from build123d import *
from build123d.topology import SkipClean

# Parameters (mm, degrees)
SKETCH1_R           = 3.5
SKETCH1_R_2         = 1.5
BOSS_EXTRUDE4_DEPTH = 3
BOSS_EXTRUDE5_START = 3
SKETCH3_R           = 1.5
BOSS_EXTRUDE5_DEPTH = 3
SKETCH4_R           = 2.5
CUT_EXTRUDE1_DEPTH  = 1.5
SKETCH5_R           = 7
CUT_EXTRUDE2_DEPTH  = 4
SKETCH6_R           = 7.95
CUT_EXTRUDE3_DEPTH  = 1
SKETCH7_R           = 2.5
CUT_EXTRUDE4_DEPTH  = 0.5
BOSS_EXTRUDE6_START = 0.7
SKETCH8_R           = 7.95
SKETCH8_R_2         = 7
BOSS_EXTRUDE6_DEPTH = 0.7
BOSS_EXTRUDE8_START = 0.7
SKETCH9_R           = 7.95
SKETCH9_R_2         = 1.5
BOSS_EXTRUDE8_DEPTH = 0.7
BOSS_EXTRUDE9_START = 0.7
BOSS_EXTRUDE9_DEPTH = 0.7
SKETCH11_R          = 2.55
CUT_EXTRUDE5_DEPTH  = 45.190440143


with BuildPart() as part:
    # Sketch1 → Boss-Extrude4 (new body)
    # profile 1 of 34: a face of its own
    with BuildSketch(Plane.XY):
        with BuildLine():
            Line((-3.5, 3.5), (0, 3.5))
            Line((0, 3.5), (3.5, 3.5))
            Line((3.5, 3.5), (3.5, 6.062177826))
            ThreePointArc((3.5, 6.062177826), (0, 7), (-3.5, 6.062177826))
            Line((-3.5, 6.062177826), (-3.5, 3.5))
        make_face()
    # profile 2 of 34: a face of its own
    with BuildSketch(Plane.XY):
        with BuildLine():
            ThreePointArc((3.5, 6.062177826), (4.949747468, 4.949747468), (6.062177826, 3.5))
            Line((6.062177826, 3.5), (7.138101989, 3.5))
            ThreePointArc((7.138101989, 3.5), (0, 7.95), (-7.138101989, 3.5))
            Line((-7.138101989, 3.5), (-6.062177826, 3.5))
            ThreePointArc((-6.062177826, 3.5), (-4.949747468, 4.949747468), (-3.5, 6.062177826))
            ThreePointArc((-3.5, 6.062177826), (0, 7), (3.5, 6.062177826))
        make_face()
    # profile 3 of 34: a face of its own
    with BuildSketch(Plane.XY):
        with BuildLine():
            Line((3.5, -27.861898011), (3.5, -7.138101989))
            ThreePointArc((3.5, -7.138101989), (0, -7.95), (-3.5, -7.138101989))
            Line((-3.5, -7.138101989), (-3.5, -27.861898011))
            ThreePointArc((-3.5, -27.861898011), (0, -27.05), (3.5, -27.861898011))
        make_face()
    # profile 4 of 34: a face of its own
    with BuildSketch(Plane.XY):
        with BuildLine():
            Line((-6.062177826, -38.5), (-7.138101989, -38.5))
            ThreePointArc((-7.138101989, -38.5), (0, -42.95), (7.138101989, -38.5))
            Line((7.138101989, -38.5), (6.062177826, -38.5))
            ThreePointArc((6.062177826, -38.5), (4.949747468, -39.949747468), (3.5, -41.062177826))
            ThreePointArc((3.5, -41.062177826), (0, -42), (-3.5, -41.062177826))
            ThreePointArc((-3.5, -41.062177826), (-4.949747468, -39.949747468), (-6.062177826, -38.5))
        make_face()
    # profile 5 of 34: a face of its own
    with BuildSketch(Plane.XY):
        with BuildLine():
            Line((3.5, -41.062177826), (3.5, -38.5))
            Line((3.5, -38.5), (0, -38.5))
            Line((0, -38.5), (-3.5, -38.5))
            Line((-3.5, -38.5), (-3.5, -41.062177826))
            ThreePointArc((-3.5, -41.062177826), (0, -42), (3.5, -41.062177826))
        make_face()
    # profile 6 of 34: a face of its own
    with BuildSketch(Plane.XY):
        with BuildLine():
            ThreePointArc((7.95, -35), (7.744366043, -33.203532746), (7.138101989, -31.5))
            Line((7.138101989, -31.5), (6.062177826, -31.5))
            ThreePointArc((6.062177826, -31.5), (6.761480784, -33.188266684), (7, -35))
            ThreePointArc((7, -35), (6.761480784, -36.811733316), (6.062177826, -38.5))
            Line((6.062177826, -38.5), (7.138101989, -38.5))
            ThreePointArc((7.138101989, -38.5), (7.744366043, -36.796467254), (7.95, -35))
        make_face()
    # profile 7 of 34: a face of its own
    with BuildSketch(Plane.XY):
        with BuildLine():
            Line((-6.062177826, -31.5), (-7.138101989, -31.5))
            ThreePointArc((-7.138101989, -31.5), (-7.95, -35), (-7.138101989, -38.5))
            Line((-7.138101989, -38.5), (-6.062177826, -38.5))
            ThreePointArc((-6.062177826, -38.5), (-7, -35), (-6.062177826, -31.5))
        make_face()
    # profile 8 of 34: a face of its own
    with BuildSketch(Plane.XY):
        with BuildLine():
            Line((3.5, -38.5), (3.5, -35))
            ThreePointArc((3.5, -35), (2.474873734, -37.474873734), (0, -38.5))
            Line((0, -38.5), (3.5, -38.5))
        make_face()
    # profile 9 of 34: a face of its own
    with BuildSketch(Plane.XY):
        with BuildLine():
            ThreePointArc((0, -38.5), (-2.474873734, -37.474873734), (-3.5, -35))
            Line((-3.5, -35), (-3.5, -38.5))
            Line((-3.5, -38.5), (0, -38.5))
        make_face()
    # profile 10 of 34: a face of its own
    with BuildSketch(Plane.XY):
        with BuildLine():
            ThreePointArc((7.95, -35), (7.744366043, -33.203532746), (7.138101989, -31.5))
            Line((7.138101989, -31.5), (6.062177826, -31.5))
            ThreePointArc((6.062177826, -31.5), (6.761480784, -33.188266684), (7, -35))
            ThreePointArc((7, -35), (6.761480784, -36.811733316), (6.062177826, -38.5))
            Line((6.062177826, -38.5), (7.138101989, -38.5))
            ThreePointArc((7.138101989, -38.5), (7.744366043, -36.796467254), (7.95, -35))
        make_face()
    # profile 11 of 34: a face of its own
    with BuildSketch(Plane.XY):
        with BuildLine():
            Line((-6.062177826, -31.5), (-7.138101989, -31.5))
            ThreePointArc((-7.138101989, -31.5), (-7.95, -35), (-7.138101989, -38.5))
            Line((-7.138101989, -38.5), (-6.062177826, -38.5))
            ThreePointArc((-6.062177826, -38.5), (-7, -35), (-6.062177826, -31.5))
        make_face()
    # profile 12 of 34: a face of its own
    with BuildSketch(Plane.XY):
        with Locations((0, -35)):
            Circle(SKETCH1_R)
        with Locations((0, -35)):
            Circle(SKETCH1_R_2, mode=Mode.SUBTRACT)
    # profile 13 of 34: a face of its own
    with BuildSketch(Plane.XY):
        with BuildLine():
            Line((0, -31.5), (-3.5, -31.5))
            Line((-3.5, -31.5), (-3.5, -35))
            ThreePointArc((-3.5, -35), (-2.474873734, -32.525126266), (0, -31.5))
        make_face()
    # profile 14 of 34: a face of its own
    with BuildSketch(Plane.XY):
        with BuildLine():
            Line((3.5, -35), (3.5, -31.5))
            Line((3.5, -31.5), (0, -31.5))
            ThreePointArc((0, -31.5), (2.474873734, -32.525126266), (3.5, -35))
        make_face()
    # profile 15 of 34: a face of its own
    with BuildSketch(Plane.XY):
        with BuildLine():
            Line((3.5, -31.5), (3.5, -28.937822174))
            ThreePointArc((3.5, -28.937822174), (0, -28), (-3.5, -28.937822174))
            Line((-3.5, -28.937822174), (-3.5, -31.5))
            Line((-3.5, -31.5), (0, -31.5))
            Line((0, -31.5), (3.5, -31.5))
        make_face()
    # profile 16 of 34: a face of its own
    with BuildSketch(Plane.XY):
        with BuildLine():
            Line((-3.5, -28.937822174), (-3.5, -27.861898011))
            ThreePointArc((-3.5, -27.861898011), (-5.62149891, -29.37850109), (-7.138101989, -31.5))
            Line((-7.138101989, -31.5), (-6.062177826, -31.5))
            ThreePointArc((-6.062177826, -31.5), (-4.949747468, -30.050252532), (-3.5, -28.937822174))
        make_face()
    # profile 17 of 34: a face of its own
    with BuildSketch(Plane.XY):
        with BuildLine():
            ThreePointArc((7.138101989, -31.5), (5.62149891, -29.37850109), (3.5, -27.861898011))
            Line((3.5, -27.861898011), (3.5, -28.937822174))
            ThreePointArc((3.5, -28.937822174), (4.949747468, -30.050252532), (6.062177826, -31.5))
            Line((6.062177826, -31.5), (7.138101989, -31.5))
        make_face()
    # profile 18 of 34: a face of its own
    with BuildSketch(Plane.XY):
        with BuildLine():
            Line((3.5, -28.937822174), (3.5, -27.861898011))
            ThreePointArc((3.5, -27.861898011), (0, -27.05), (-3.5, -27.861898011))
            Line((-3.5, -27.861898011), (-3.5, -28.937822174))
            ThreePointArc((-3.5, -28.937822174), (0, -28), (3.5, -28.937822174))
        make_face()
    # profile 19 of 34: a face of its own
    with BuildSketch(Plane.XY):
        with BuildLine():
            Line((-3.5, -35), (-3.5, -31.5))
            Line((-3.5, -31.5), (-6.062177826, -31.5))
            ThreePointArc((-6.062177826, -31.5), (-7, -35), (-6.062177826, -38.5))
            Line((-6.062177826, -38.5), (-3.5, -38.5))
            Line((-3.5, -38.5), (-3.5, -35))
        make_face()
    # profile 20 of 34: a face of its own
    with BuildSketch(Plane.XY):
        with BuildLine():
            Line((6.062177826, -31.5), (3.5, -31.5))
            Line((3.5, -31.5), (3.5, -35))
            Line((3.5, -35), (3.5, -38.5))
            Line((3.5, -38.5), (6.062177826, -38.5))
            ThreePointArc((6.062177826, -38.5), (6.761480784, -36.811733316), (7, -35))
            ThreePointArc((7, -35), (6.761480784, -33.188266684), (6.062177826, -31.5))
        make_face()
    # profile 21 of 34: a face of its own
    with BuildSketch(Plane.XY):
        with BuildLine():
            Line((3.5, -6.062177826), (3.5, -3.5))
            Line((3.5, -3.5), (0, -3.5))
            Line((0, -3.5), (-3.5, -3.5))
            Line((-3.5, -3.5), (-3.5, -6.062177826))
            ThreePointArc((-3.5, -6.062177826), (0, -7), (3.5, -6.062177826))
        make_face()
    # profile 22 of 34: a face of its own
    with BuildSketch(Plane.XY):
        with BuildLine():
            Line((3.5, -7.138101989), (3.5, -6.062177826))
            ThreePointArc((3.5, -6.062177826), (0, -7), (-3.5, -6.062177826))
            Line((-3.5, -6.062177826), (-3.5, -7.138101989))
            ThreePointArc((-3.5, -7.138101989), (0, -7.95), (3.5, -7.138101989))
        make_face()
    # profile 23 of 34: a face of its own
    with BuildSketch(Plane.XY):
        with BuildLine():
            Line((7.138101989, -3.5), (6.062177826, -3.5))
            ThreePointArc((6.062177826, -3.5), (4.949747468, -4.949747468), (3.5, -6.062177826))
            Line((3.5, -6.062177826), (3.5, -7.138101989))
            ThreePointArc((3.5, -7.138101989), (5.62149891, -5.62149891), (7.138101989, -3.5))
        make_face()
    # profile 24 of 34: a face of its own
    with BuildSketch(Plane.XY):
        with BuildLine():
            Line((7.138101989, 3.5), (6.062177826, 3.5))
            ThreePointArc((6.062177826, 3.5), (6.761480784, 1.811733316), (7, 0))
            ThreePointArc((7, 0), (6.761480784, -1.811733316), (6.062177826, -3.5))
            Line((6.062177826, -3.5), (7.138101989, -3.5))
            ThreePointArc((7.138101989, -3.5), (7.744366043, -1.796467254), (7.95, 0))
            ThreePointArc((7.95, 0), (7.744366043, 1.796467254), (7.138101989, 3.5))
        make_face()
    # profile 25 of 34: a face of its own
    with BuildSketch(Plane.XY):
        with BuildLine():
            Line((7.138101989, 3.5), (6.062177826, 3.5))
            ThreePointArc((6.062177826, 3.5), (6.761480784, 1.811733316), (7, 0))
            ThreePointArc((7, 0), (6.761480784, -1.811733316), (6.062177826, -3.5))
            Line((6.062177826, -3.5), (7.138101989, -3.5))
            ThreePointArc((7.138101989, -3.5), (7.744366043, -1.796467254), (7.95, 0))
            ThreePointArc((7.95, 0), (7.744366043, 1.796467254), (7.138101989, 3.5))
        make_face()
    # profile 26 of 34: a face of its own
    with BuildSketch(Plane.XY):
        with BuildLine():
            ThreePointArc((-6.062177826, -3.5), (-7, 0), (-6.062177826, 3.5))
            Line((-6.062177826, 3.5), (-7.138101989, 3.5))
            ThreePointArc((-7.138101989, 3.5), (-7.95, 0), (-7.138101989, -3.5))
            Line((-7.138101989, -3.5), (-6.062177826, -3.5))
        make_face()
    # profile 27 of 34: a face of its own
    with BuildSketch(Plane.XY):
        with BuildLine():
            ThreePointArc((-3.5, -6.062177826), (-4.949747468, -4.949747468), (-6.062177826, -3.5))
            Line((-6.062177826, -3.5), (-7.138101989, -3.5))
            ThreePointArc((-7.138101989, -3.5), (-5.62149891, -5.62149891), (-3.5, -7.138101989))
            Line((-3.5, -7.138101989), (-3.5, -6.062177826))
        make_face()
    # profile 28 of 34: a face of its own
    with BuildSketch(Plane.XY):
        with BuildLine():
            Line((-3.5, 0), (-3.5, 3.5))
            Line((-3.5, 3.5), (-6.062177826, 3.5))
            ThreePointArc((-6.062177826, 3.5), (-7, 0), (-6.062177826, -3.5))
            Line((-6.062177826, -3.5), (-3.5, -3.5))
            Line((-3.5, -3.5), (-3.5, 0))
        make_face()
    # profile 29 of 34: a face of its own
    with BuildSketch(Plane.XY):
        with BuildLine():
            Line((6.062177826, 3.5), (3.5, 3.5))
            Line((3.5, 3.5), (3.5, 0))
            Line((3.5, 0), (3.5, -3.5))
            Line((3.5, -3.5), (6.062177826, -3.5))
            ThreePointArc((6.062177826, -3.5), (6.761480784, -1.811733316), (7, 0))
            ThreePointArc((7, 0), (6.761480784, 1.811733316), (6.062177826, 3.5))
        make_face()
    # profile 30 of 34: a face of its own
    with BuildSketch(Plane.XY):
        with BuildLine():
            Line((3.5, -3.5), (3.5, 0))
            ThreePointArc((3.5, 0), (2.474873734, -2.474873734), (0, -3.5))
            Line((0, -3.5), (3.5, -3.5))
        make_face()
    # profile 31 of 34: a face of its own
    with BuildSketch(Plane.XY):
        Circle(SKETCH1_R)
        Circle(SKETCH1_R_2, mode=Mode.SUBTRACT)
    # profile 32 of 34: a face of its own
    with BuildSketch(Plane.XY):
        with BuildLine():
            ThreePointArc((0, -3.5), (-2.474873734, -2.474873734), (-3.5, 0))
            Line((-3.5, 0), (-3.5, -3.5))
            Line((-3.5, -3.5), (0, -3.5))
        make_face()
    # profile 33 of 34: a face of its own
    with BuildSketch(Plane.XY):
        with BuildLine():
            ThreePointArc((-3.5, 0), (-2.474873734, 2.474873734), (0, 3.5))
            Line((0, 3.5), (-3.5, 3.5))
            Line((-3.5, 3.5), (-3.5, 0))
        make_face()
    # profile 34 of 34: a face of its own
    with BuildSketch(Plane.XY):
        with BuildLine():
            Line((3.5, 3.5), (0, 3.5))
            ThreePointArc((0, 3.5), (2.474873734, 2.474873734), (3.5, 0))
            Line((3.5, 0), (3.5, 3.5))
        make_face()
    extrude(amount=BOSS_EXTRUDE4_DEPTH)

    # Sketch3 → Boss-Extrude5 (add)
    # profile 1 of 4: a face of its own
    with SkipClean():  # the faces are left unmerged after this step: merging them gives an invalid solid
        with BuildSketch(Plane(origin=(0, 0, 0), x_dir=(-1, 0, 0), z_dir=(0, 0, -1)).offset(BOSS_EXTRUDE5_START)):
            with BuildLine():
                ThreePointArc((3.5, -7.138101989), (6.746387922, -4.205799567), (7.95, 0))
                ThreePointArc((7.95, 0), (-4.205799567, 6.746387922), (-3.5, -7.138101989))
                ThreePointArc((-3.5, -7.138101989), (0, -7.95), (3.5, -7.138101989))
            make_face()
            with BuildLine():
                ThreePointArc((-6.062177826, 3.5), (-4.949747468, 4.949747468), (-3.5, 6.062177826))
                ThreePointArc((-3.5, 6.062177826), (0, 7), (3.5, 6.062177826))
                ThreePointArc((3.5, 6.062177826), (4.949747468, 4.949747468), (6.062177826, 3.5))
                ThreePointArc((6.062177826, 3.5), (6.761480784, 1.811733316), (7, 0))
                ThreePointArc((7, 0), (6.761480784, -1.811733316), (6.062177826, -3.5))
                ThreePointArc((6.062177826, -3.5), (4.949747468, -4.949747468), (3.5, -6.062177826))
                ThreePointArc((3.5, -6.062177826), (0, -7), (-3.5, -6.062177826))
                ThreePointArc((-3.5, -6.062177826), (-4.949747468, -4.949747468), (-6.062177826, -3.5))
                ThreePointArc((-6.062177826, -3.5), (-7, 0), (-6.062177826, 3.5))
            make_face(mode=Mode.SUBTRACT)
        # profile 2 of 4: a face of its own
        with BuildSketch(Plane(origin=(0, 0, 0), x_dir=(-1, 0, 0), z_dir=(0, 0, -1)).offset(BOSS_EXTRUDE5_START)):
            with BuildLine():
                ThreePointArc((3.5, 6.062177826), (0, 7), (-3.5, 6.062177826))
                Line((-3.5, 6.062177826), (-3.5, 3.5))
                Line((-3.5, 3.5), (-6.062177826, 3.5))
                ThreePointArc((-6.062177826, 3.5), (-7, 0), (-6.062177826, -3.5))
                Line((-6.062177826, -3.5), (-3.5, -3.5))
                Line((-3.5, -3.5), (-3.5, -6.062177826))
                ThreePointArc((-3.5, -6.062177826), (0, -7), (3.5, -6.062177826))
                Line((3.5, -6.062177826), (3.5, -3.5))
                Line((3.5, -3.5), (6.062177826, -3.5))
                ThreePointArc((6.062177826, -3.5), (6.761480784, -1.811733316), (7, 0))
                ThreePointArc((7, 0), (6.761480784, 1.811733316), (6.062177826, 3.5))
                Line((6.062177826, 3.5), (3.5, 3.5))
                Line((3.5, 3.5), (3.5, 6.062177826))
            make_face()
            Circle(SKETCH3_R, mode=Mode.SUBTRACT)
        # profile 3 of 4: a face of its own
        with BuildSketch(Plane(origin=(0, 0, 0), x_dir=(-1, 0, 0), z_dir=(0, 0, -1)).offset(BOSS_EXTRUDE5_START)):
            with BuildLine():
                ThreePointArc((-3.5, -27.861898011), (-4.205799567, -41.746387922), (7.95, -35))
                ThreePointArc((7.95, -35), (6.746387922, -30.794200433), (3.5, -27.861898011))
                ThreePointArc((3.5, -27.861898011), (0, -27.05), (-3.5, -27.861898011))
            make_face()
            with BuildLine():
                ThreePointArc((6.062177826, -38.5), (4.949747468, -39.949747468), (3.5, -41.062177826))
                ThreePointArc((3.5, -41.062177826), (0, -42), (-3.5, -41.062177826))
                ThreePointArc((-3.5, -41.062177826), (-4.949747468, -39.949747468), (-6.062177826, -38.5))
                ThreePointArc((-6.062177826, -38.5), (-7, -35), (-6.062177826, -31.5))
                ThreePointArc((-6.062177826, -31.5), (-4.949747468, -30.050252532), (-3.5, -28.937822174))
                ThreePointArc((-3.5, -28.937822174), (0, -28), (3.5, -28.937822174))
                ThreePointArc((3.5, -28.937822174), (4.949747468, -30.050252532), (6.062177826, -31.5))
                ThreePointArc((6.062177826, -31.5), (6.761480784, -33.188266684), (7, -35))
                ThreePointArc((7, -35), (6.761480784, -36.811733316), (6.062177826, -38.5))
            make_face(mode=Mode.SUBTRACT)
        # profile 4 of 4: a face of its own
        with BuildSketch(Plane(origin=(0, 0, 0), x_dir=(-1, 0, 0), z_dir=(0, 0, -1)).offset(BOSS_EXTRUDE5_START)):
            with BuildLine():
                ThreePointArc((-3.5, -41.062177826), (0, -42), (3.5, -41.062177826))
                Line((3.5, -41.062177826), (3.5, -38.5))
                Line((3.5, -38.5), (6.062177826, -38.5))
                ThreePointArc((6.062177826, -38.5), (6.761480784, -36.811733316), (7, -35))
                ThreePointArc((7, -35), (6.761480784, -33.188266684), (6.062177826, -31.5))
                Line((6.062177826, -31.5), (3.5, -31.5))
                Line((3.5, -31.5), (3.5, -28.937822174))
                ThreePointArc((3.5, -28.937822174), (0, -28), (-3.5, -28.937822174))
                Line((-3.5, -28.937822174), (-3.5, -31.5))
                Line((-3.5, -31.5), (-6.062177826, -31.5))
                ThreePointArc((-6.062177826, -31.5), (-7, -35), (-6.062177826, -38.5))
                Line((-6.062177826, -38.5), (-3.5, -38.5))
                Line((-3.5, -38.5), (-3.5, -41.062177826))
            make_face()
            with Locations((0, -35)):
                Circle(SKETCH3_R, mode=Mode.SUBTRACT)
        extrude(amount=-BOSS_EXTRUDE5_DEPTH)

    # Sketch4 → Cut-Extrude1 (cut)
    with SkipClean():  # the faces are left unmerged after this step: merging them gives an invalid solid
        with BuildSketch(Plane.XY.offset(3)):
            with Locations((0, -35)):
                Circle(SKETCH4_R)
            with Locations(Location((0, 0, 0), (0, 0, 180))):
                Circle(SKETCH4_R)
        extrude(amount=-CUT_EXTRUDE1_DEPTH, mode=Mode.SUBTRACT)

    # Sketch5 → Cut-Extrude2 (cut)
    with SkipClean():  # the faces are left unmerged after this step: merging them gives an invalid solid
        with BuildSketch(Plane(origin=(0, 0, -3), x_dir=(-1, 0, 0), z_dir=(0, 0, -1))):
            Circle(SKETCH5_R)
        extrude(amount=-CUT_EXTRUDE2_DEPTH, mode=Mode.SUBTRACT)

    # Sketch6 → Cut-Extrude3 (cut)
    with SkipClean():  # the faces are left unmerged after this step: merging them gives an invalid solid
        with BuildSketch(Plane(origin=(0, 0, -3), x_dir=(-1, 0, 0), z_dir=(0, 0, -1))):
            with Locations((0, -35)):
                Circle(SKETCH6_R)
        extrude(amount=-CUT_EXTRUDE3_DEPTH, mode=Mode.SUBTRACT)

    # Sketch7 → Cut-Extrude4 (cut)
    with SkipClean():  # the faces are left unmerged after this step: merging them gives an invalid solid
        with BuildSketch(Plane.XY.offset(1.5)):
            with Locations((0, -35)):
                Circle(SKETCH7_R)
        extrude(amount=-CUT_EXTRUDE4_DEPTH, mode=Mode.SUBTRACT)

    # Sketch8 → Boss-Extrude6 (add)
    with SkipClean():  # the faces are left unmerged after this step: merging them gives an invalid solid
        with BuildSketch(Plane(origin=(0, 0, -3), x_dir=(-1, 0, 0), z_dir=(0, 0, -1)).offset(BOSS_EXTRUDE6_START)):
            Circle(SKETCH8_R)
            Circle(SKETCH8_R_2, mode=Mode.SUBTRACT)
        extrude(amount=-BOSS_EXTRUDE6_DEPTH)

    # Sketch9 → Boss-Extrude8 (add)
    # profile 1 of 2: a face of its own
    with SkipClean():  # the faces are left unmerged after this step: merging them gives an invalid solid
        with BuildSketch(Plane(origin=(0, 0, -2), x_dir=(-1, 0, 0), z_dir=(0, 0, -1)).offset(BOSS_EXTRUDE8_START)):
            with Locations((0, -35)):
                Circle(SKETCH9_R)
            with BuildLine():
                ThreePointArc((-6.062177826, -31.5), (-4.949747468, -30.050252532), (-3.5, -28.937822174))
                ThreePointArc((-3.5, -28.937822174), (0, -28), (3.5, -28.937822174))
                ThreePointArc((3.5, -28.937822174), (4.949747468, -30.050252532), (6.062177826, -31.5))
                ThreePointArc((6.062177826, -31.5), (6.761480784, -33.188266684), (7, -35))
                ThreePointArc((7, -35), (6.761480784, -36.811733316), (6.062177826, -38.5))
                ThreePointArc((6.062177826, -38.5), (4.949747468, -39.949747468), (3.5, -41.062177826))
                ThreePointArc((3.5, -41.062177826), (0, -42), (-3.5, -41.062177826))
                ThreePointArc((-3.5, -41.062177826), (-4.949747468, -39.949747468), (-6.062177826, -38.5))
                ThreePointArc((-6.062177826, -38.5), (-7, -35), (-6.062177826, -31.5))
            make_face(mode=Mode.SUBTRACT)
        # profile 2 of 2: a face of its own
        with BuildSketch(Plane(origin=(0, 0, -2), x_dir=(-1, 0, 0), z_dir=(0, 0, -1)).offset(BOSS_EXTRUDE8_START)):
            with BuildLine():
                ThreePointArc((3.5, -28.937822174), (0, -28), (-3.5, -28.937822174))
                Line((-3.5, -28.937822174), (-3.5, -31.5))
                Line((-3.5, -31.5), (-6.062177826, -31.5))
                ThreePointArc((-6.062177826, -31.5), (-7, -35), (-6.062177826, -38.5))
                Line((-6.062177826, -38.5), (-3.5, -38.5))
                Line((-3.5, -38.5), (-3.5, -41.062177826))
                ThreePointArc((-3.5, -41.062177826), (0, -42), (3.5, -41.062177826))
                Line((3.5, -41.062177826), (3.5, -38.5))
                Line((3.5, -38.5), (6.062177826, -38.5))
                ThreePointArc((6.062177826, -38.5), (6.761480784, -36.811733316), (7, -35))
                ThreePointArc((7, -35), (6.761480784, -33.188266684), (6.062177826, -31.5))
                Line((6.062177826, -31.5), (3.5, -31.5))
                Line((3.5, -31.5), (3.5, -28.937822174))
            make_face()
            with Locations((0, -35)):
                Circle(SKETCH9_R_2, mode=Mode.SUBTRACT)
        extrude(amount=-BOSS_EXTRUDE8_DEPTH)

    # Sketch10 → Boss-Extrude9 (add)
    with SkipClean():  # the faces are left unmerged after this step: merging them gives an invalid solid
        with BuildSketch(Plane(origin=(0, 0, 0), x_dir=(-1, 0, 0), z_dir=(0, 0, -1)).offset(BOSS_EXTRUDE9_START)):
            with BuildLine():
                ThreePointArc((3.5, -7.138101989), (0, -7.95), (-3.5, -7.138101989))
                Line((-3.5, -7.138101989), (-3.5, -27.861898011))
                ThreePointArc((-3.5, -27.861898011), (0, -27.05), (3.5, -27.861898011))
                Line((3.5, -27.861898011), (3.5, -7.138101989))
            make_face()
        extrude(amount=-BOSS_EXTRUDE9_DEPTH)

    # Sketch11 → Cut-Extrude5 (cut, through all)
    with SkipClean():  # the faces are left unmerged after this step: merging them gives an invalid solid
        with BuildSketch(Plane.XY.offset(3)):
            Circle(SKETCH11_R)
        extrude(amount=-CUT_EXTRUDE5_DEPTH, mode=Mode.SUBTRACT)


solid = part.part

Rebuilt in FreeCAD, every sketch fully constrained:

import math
import FreeCAD as App
import Part
import Sketcher

V = App.Vector

doc = App.newDocument("Part")
body = doc.addObject("PartDesign::Body", "Body")

# Sketch on XY plane
sketch1 = body.newObject("Sketcher::SketchObject", "Sketch")
sketch1.AttachmentSupport = (doc.getObject("XY_Plane"), [""])
sketch1.MapMode = "FlatFace"
sketch1.addGeometry(Part.ArcOfCircle(Part.Circle(V(0, 0, 0), V(0, 0, 1), 8), math.radians(26), math.radians(154)), False)
sketch1.addGeometry(Part.ArcOfCircle(Part.Circle(V(0, 0, 0), V(0, 0, 1), 8), math.radians(154), math.radians(206)), False)
sketch1.addGeometry(Part.ArcOfCircle(Part.Circle(V(0, 0, 0), V(0, 0, 1), 8), math.radians(-154), math.radians(-116)), False)
sketch1.addGeometry(Part.LineSegment(V(-3.5, -7.1, 0), V(-3.5, -27.9, 0)), False)
sketch1.addGeometry(Part.ArcOfCircle(Part.Circle(V(0, -35, 0), V(0, 0, 1), 8), math.radians(116), math.radians(154)), False)
sketch1.addGeometry(Part.ArcOfCircle(Part.Circle(V(0, -35, 0), V(0, 0, 1), 8), math.radians(154), math.radians(206)), False)
sketch1.addGeometry(Part.ArcOfCircle(Part.Circle(V(0, -35, 0), V(0, 0, 1), 8), math.radians(-154), math.radians(-26)), False)
sketch1.addGeometry(Part.ArcOfCircle(Part.Circle(V(0, -35, 0), V(0, 0, 1), 8), math.radians(-26), math.radians(0)), False)
sketch1.addGeometry(Part.ArcOfCircle(Part.Circle(V(0, -35, 0), V(0, 0, 1), 8), math.radians(0), math.radians(26)), False)
sketch1.addGeometry(Part.ArcOfCircle(Part.Circle(V(0, -35, 0), V(0, 0, 1), 8), math.radians(26), math.radians(64)), False)
sketch1.addGeometry(Part.LineSegment(V(3.5, -27.9, 0), V(3.5, -7.1, 0)), False)
sketch1.addGeometry(Part.ArcOfCircle(Part.Circle(V(0, 0, 0), V(0, 0, 1), 8), math.radians(-64), math.radians(-26)), False)
sketch1.addGeometry(Part.ArcOfCircle(Part.Circle(V(0, 0, 0), V(0, 0, 1), 8), math.radians(-26), math.radians(0)), False)
sketch1.addGeometry(Part.ArcOfCircle(Part.Circle(V(0, 0, 0), V(0, 0, 1), 8), math.radians(0), math.radians(26)), False)
sketch1.addGeometry(Part.LineSegment(V(3.5, 3.5, 0), V(3.5, 6.1, 0)), False)
sketch1.addGeometry(Part.ArcOfCircle(Part.Circle(V(0, 0, 0), V(0, 0, 1), 7), math.radians(30), math.radians(60)), False)
sketch1.addGeometry(Part.LineSegment(V(6.1, 3.5, 0), V(3.5, 3.5, 0)), False)
sketch1.addGeometry(Part.LineSegment(V(-3.5, 6.1, 0), V(-3.5, 3.5, 0)), False)
sketch1.addGeometry(Part.LineSegment(V(-3.5, 3.5, 0), V(-6.1, 3.5, 0)), False)
sketch1.addGeometry(Part.ArcOfCircle(Part.Circle(V(0, 0, 0), V(0, 0, 1), 7), math.radians(120), math.radians(150)), False)
sketch1.addGeometry(Part.Circle(V(0, 0, 0), V(0, 0, 1), 1.5), False)
sketch1.addGeometry(Part.LineSegment(V(-6.1, -3.5, 0), V(-3.5, -3.5, 0)), False)
sketch1.addGeometry(Part.LineSegment(V(-3.5, -3.5, 0), V(-3.5, -6.1, 0)), False)
sketch1.addGeometry(Part.ArcOfCircle(Part.Circle(V(0, 0, 0), V(0, 0, 1), 7), math.radians(-150), math.radians(-120)), False)
sketch1.addGeometry(Part.LineSegment(V(3.5, -3.5, 0), V(6.1, -3.5, 0)), False)
sketch1.addGeometry(Part.ArcOfCircle(Part.Circle(V(0, 0, 0), V(0, 0, 1), 7), math.radians(-60), math.radians(-30)), False)
sketch1.addGeometry(Part.LineSegment(V(3.5, -6.1, 0), V(3.5, -3.5, 0)), False)
sketch1.addGeometry(Part.ArcOfCircle(Part.Circle(V(0, -35, 0), V(0, 0, 1), 7), math.radians(30), math.radians(60)), False)
sketch1.addGeometry(Part.LineSegment(V(6.1, -31.5, 0), V(3.5, -31.5, 0)), False)
sketch1.addGeometry(Part.LineSegment(V(3.5, -31.5, 0), V(3.5, -28.9, 0)), False)
sketch1.addGeometry(Part.LineSegment(V(-3.5, -28.9, 0), V(-3.5, -31.5, 0)), False)
sketch1.addGeometry(Part.LineSegment(V(-3.5, -31.5, 0), V(-6.1, -31.5, 0)), False)
sketch1.addGeometry(Part.ArcOfCircle(Part.Circle(V(0, -35, 0), V(0, 0, 1), 7), math.radians(120), math.radians(150)), False)
sketch1.addGeometry(Part.LineSegment(V(3.5, -38.5, 0), V(6.1, -38.5, 0)), False)
sketch1.addGeometry(Part.ArcOfCircle(Part.Circle(V(0, -35, 0), V(0, 0, 1), 7), math.radians(-60), math.radians(-30)), False)
sketch1.addGeometry(Part.LineSegment(V(3.5, -41.1, 0), V(3.5, -38.5, 0)), False)
sketch1.addGeometry(Part.ArcOfCircle(Part.Circle(V(0, -35, 0), V(0, 0, 1), 7), math.radians(-150), math.radians(-120)), False)
sketch1.addGeometry(Part.LineSegment(V(-6.1, -38.5, 0), V(-3.5, -38.5, 0)), False)
sketch1.addGeometry(Part.LineSegment(V(-3.5, -38.5, 0), V(-3.5, -41.1, 0)), False)
sketch1.addGeometry(Part.Circle(V(0, -35, 0), V(0, 0, 1), 1.5), False)
sketch1.addConstraint(Sketcher.Constraint("Tangent", 0, 2, 1, 1))
sketch1.addConstraint(Sketcher.Constraint("Tangent", 1, 2, 2, 1))
sketch1.addConstraint(Sketcher.Constraint("Coincident", 2, 2, 3, 1))
sketch1.addConstraint(Sketcher.Constraint("Coincident", 3, 2, 4, 1))
sketch1.addConstraint(Sketcher.Constraint("Tangent", 4, 2, 5, 1))
sketch1.addConstraint(Sketcher.Constraint("Tangent", 5, 2, 6, 1))
sketch1.addConstraint(Sketcher.Constraint("Tangent", 6, 2, 7, 1))
sketch1.addConstraint(Sketcher.Constraint("Tangent", 7, 2, 8, 1))
sketch1.addConstraint(Sketcher.Constraint("Tangent", 8, 2, 9, 1))
sketch1.addConstraint(Sketcher.Constraint("Coincident", 9, 2, 10, 1))
sketch1.addConstraint(Sketcher.Constraint("Coincident", 10, 2, 11, 1))
sketch1.addConstraint(Sketcher.Constraint("Tangent", 11, 2, 12, 1))
sketch1.addConstraint(Sketcher.Constraint("Tangent", 12, 2, 13, 1))
sketch1.addConstraint(Sketcher.Constraint("Tangent", 13, 2, 0, 1))
sketch1.addConstraint(Sketcher.Constraint("Coincident", 14, 2, 15, 2))
sketch1.addConstraint(Sketcher.Constraint("Coincident", 15, 1, 16, 1))
sketch1.addConstraint(Sketcher.Constraint("Coincident", 16, 2, 14, 1))
sketch1.addConstraint(Sketcher.Constraint("Coincident", 17, 2, 18, 1))
sketch1.addConstraint(Sketcher.Constraint("Coincident", 18, 2, 19, 2))
sketch1.addConstraint(Sketcher.Constraint("Coincident", 19, 1, 17, 1))
sketch1.addConstraint(Sketcher.Constraint("Coincident", 21, 2, 22, 1))
sketch1.addConstraint(Sketcher.Constraint("Coincident", 22, 2, 23, 2))
sketch1.addConstraint(Sketcher.Constraint("Coincident", 23, 1, 21, 1))
sketch1.addConstraint(Sketcher.Constraint("Coincident", 24, 2, 25, 2))
sketch1.addConstraint(Sketcher.Constraint("Coincident", 25, 1, 26, 1))
sketch1.addConstraint(Sketcher.Constraint("Coincident", 26, 2, 24, 1))
sketch1.addConstraint(Sketcher.Constraint("Coincident", 27, 1, 28, 1))
sketch1.addConstraint(Sketcher.Constraint("Coincident", 28, 2, 29, 1))
sketch1.addConstraint(Sketcher.Constraint("Coincident", 29, 2, 27, 2))
sketch1.addConstraint(Sketcher.Constraint("Coincident", 30, 2, 31, 1))
sketch1.addConstraint(Sketcher.Constraint("Coincident", 31, 2, 32, 2))
sketch1.addConstraint(Sketcher.Constraint("Coincident", 32, 1, 30, 1))
sketch1.addConstraint(Sketcher.Constraint("Coincident", 33, 2, 34, 2))
sketch1.addConstraint(Sketcher.Constraint("Coincident", 34, 1, 35, 1))
sketch1.addConstraint(Sketcher.Constraint("Coincident", 35, 2, 33, 1))
sketch1.addConstraint(Sketcher.Constraint("Coincident", 36, 1, 37, 1))
sketch1.addConstraint(Sketcher.Constraint("Coincident", 37, 2, 38, 1))
sketch1.addConstraint(Sketcher.Constraint("Coincident", 38, 2, 36, 2))
sketch1.addConstraint(Sketcher.Constraint("Vertical", 3))
sketch1.addConstraint(Sketcher.Constraint("Vertical", 10))
sketch1.addConstraint(Sketcher.Constraint("Vertical", 14))
sketch1.addConstraint(Sketcher.Constraint("Horizontal", 16))
sketch1.addConstraint(Sketcher.Constraint("Vertical", 17))
sketch1.addConstraint(Sketcher.Constraint("Horizontal", 18))
sketch1.addConstraint(Sketcher.Constraint("Horizontal", 21))
sketch1.addConstraint(Sketcher.Constraint("Vertical", 22))
sketch1.addConstraint(Sketcher.Constraint("Horizontal", 24))
sketch1.addConstraint(Sketcher.Constraint("Vertical", 26))
sketch1.addConstraint(Sketcher.Constraint("Horizontal", 28))
sketch1.addConstraint(Sketcher.Constraint("Vertical", 29))
sketch1.addConstraint(Sketcher.Constraint("Vertical", 30))
sketch1.addConstraint(Sketcher.Constraint("Horizontal", 31))
sketch1.addConstraint(Sketcher.Constraint("Horizontal", 33))
sketch1.addConstraint(Sketcher.Constraint("Vertical", 35))
sketch1.addConstraint(Sketcher.Constraint("Horizontal", 37))
sketch1.addConstraint(Sketcher.Constraint("Vertical", 38))
sketch1.addConstraint(Sketcher.Constraint("Coincident", 0, 3, -1, 1))
sketch1.addConstraint(Sketcher.Constraint("Coincident", 2, 3, -1, 1))
sketch1.addConstraint(Sketcher.Constraint("Coincident", 11, 3, -1, 1))
sketch1.addConstraint(Sketcher.Constraint("Coincident", 15, 3, -1, 1))
sketch1.addConstraint(Sketcher.Constraint("Coincident", 19, 3, -1, 1))
sketch1.addConstraint(Sketcher.Constraint("Coincident", 20, 3, -1, 1))
sketch1.addConstraint(Sketcher.Constraint("Coincident", 23, 3, -1, 1))
sketch1.addConstraint(Sketcher.Constraint("Coincident", 25, 3, -1, 1))
sketch1.addConstraint(Sketcher.Constraint("Coincident", 6, 3, 4, 3))
sketch1.addConstraint(Sketcher.Constraint("Coincident", 8, 3, 4, 3))
sketch1.addConstraint(Sketcher.Constraint("Coincident", 27, 3, 4, 3))
sketch1.addConstraint(Sketcher.Constraint("Coincident", 32, 3, 4, 3))
sketch1.addConstraint(Sketcher.Constraint("Coincident", 34, 3, 4, 3))
sketch1.addConstraint(Sketcher.Constraint("Coincident", 36, 3, 4, 3))
sketch1.addConstraint(Sketcher.Constraint("Coincident", 39, 3, 4, 3))
sketch1.addConstraint(Sketcher.Constraint("Equal", 2, 4))
sketch1.addConstraint(Sketcher.Constraint("Equal", 8, 9))
sketch1.addConstraint(Sketcher.Constraint("Equal", 9, 11))
sketch1.addConstraint(Sketcher.Constraint("Equal", 15, 19))
sketch1.addConstraint(Sketcher.Constraint("Equal", 19, 23))
sketch1.addConstraint(Sketcher.Constraint("Equal", 23, 25))
sketch1.addConstraint(Sketcher.Constraint("Equal", 25, 27))
sketch1.addConstraint(Sketcher.Constraint("Equal", 27, 32))
sketch1.addConstraint(Sketcher.Constraint("Equal", 32, 34))
sketch1.addConstraint(Sketcher.Constraint("Equal", 34, 36))
sketch1.addConstraint(Sketcher.Constraint("Equal", 20, 39))
sketch1.addConstraint(Sketcher.Constraint("Symmetric", 16, 2, 21, 2, -1, 1))
sketch1.addConstraint(Sketcher.Constraint("Symmetric", 17, 2, 26, 2, -1, 1))
sketch1.addConstraint(Sketcher.Constraint("Symmetric", 5, 2, 6, 2, -2))
sketch1.addConstraint(Sketcher.Constraint("Symmetric", 16, 2, 17, 2, -2))
sketch1.addConstraint(Sketcher.Constraint("Symmetric", 28, 2, 30, 2, -2))
sketch1.addConstraint(Sketcher.Constraint("Symmetric", 35, 2, 37, 2, -2))
sketch1.addConstraint(Sketcher.Constraint("PointOnObject", 12, 2, -1))
sketch1.addConstraint(Sketcher.Constraint("Horizontal", 39, 3, 7, 2))
sketch1.addConstraint(Sketcher.Constraint("Horizontal", 4, 2, 8, 2))
sketch1.addConstraint(Sketcher.Constraint("Horizontal", 3, 2, 9, 2))
sketch1.addConstraint(Sketcher.Constraint("Horizontal", 1, 2, 11, 2))
sketch1.addConstraint(Sketcher.Constraint("Horizontal", 0, 2, 13, 2))
sketch1.addConstraint(Sketcher.Constraint("Horizontal", 13, 2, 15, 1))
sketch1.addConstraint(Sketcher.Constraint("Horizontal", 11, 2, 21, 2))
sketch1.addConstraint(Sketcher.Constraint("Horizontal", 8, 2, 27, 1))
sketch1.addConstraint(Sketcher.Constraint("Horizontal", 6, 2, 33, 2))
sketch1.addConstraint(Sketcher.Constraint("Vertical", 1, 2, 4, 2))
sketch1.addConstraint(Sketcher.Constraint("Vertical", 4, 2, 5, 2))
sketch1.addConstraint(Sketcher.Constraint("Vertical", 10, 2, 14, 2))
sketch1.addConstraint(Sketcher.Constraint("Vertical", 26, 2, 28, 2))
sketch1.addConstraint(Sketcher.Constraint("Vertical", 29, 2, 34, 1))
sketch1.addConstraint(Sketcher.Constraint("Equal", 37, 14))
sketch1.addConstraint(Sketcher.Constraint("Diameter", 20, 3.0))
sketch1.addConstraint(Sketcher.Constraint("Radius", 15, 7.0))
sketch1.addConstraint(Sketcher.Constraint("Radius", 0, 7.95))
sketch1.addConstraint(Sketcher.Constraint("DistanceY", 4, 3, -1, 1, 35.0))
sketch1.addConstraint(Sketcher.Constraint("DistanceY", 1, 2, 0, 2, 7.0))
pad1 = body.newObject("PartDesign::Pad", "Pad")
pad1.Profile = sketch1
pad1.Length = 3

# Sketch on XY plane
sketch2 = body.newObject("Sketcher::SketchObject", "Sketch001")
sketch2.AttachmentSupport = (doc.getObject("XY_Plane"), [""])
sketch2.MapMode = "FlatFace"
sketch2.AttachmentOffset = App.Placement(V(0, 0, -3), App.Rotation())
sketch2.addGeometry(Part.ArcOfCircle(Part.Circle(V(0, 0, 0), V(0, 0, 1), 8), math.radians(-180), math.radians(-116)), False)
sketch2.addGeometry(Part.ArcOfCircle(Part.Circle(V(0, 0, 0), V(0, 0, 1), 8), math.radians(-64), math.radians(180)), False)
sketch2.addGeometry(Part.ArcOfCircle(Part.Circle(V(0, 0, 0), V(0, 0, 1), 8), math.radians(-116), math.radians(-64)), False)
sketch2.addGeometry(Part.ArcOfCircle(Part.Circle(V(0, 0, 0), V(0, 0, 1), 7), math.radians(-60), math.radians(-30)), False)
sketch2.addGeometry(Part.LineSegment(V(6.1, -3.5, 0), V(3.5, -3.5, 0)), False)
sketch2.addGeometry(Part.LineSegment(V(3.5, -3.5, 0), V(3.5, -6.1, 0)), False)
sketch2.addGeometry(Part.ArcOfCircle(Part.Circle(V(0, 0, 0), V(0, 0, 1), 7), math.radians(-150), math.radians(-120)), False)
sketch2.addGeometry(Part.LineSegment(V(-3.5, -6.1, 0), V(-3.5, -3.5, 0)), False)
sketch2.addGeometry(Part.LineSegment(V(-3.5, -3.5, 0), V(-6.1, -3.5, 0)), False)
sketch2.addGeometry(Part.ArcOfCircle(Part.Circle(V(0, 0, 0), V(0, 0, 1), 7), math.radians(120), math.radians(150)), False)
sketch2.addGeometry(Part.LineSegment(V(-6.1, 3.5, 0), V(-3.5, 3.5, 0)), False)
sketch2.addGeometry(Part.LineSegment(V(-3.5, 3.5, 0), V(-3.5, 6.1, 0)), False)
sketch2.addGeometry(Part.ArcOfCircle(Part.Circle(V(0, 0, 0), V(0, 0, 1), 7), math.radians(30), math.radians(60)), False)
sketch2.addGeometry(Part.LineSegment(V(3.5, 6.1, 0), V(3.5, 3.5, 0)), False)
sketch2.addGeometry(Part.LineSegment(V(3.5, 3.5, 0), V(6.1, 3.5, 0)), False)
sketch2.addGeometry(Part.Circle(V(0, 0, 0), V(0, 0, 1), 1.5), False)
sketch2.addGeometry(Part.ArcOfCircle(Part.Circle(V(0, -35, 0), V(0, 0, 1), 8), math.radians(180), math.radians(424)), False)
sketch2.addGeometry(Part.ArcOfCircle(Part.Circle(V(0, -35, 0), V(0, 0, 1), 8), math.radians(116), math.radians(180)), False)
sketch2.addGeometry(Part.ArcOfCircle(Part.Circle(V(0, -35, 0), V(0, 0, 1), 8), math.radians(64), math.radians(116)), False)
sketch2.addGeometry(Part.ArcOfCircle(Part.Circle(V(0, -35, 0), V(0, 0, 1), 7), math.radians(120), math.radians(150)), False)
sketch2.addGeometry(Part.LineSegment(V(-6.1, -31.5, 0), V(-3.5, -31.5, 0)), False)
sketch2.addGeometry(Part.LineSegment(V(-3.5, -31.5, 0), V(-3.5, -28.9, 0)), False)
sketch2.addGeometry(Part.ArcOfCircle(Part.Circle(V(0, -35, 0), V(0, 0, 1), 7), math.radians(30), math.radians(60)), False)
sketch2.addGeometry(Part.LineSegment(V(3.5, -28.9, 0), V(3.5, -31.5, 0)), False)
sketch2.addGeometry(Part.LineSegment(V(3.5, -31.5, 0), V(6.1, -31.5, 0)), False)
sketch2.addGeometry(Part.ArcOfCircle(Part.Circle(V(0, -35, 0), V(0, 0, 1), 7), math.radians(-60), math.radians(-30)), False)
sketch2.addGeometry(Part.LineSegment(V(6.1, -38.5, 0), V(3.5, -38.5, 0)), False)
sketch2.addGeometry(Part.LineSegment(V(3.5, -38.5, 0), V(3.5, -41.1, 0)), False)
sketch2.addGeometry(Part.ArcOfCircle(Part.Circle(V(0, -35, 0), V(0, 0, 1), 7), math.radians(-150), math.radians(-120)), False)
sketch2.addGeometry(Part.LineSegment(V(-3.5, -41.1, 0), V(-3.5, -38.5, 0)), False)
sketch2.addGeometry(Part.LineSegment(V(-3.5, -38.5, 0), V(-6.1, -38.5, 0)), False)
sketch2.addGeometry(Part.Circle(V(0, -35, 0), V(0, 0, 1), 1.5), False)
sketch2.addConstraint(Sketcher.Constraint("Tangent", 0, 1, 1, 2))
sketch2.addConstraint(Sketcher.Constraint("Tangent", 1, 1, 2, 2))
sketch2.addConstraint(Sketcher.Constraint("Tangent", 2, 1, 0, 2))
sketch2.addConstraint(Sketcher.Constraint("Coincident", 3, 2, 4, 1))
sketch2.addConstraint(Sketcher.Constraint("Coincident", 4, 2, 5, 1))
sketch2.addConstraint(Sketcher.Constraint("Coincident", 5, 2, 3, 1))
sketch2.addConstraint(Sketcher.Constraint("Coincident", 6, 2, 7, 1))
sketch2.addConstraint(Sketcher.Constraint("Coincident", 7, 2, 8, 1))
sketch2.addConstraint(Sketcher.Constraint("Coincident", 8, 2, 6, 1))
sketch2.addConstraint(Sketcher.Constraint("Coincident", 9, 2, 10, 1))
sketch2.addConstraint(Sketcher.Constraint("Coincident", 10, 2, 11, 1))
sketch2.addConstraint(Sketcher.Constraint("Coincident", 11, 2, 9, 1))
sketch2.addConstraint(Sketcher.Constraint("Coincident", 12, 2, 13, 1))
sketch2.addConstraint(Sketcher.Constraint("Coincident", 13, 2, 14, 1))
sketch2.addConstraint(Sketcher.Constraint("Coincident", 14, 2, 12, 1))
sketch2.addConstraint(Sketcher.Constraint("Tangent", 16, 1, 17, 2))
sketch2.addConstraint(Sketcher.Constraint("Tangent", 17, 1, 18, 2))
sketch2.addConstraint(Sketcher.Constraint("Tangent", 18, 1, 16, 2))
sketch2.addConstraint(Sketcher.Constraint("Coincident", 19, 2, 20, 1))
sketch2.addConstraint(Sketcher.Constraint("Coincident", 20, 2, 21, 1))
sketch2.addConstraint(Sketcher.Constraint("Coincident", 21, 2, 19, 1))
sketch2.addConstraint(Sketcher.Constraint("Coincident", 22, 2, 23, 1))
sketch2.addConstraint(Sketcher.Constraint("Coincident", 23, 2, 24, 1))
sketch2.addConstraint(Sketcher.Constraint("Coincident", 24, 2, 22, 1))
sketch2.addConstraint(Sketcher.Constraint("Coincident", 25, 2, 26, 1))
sketch2.addConstraint(Sketcher.Constraint("Coincident", 26, 2, 27, 1))
sketch2.addConstraint(Sketcher.Constraint("Coincident", 27, 2, 25, 1))
sketch2.addConstraint(Sketcher.Constraint("Coincident", 28, 2, 29, 1))
sketch2.addConstraint(Sketcher.Constraint("Coincident", 29, 2, 30, 1))
sketch2.addConstraint(Sketcher.Constraint("Coincident", 30, 2, 28, 1))
sketch2.addConstraint(Sketcher.Constraint("Horizontal", 4))
sketch2.addConstraint(Sketcher.Constraint("Vertical", 5))
sketch2.addConstraint(Sketcher.Constraint("Vertical", 7))
sketch2.addConstraint(Sketcher.Constraint("Horizontal", 8))
sketch2.addConstraint(Sketcher.Constraint("Horizontal", 10))
sketch2.addConstraint(Sketcher.Constraint("Vertical", 11))
sketch2.addConstraint(Sketcher.Constraint("Vertical", 13))
sketch2.addConstraint(Sketcher.Constraint("Horizontal", 14))
sketch2.addConstraint(Sketcher.Constraint("Horizontal", 20))
sketch2.addConstraint(Sketcher.Constraint("Vertical", 21))
sketch2.addConstraint(Sketcher.Constraint("Vertical", 23))
sketch2.addConstraint(Sketcher.Constraint("Horizontal", 24))
sketch2.addConstraint(Sketcher.Constraint("Horizontal", 26))
sketch2.addConstraint(Sketcher.Constraint("Vertical", 27))
sketch2.addConstraint(Sketcher.Constraint("Vertical", 29))
sketch2.addConstraint(Sketcher.Constraint("Horizontal", 30))
sketch2.addConstraint(Sketcher.Constraint("Coincident", 0, 3, -1, 1))
sketch2.addConstraint(Sketcher.Constraint("Coincident", 3, 3, -1, 1))
sketch2.addConstraint(Sketcher.Constraint("Coincident", 6, 3, -1, 1))
sketch2.addConstraint(Sketcher.Constraint("Coincident", 9, 3, -1, 1))
sketch2.addConstraint(Sketcher.Constraint("Coincident", 12, 3, -1, 1))
sketch2.addConstraint(Sketcher.Constraint("Coincident", 15, 3, -1, 1))
sketch2.addConstraint(Sketcher.Constraint("Coincident", 19, 3, 16, 3))
sketch2.addConstraint(Sketcher.Constraint("Coincident", 22, 3, 16, 3))
sketch2.addConstraint(Sketcher.Constraint("Coincident", 25, 3, 16, 3))
sketch2.addConstraint(Sketcher.Constraint("Coincident", 28, 3, 16, 3))
sketch2.addConstraint(Sketcher.Constraint("Coincident", 31, 3, 16, 3))
sketch2.addConstraint(Sketcher.Constraint("Equal", 3, 6))
sketch2.addConstraint(Sketcher.Constraint("Equal", 6, 9))
sketch2.addConstraint(Sketcher.Constraint("Equal", 9, 12))
sketch2.addConstraint(Sketcher.Constraint("Equal", 2, 16))
sketch2.addConstraint(Sketcher.Constraint("Equal", 12, 19))
sketch2.addConstraint(Sketcher.Constraint("Equal", 19, 22))
sketch2.addConstraint(Sketcher.Constraint("Equal", 22, 25))
sketch2.addConstraint(Sketcher.Constraint("Equal", 25, 28))
sketch2.addConstraint(Sketcher.Constraint("Equal", 15, 31))
sketch2.addConstraint(Sketcher.Constraint("Symmetric", 4, 2, 10, 2, -1, 1))
sketch2.addConstraint(Sketcher.Constraint("Symmetric", 7, 2, 13, 2, -1, 1))
sketch2.addConstraint(Sketcher.Constraint("Symmetric", 4, 2, 7, 2, -2))
sketch2.addConstraint(Sketcher.Constraint("Symmetric", 17, 1, 18, 1, -2))
sketch2.addConstraint(Sketcher.Constraint("Symmetric", 20, 2, 23, 2, -2))
sketch2.addConstraint(Sketcher.Constraint("Symmetric", 26, 2, 29, 2, -2))
sketch2.addConstraint(Sketcher.Constraint("PointOnObject", 0, 1, -1))
sketch2.addConstraint(Sketcher.Constraint("Horizontal", 1, 1, 2, 1))
sketch2.addConstraint(Sketcher.Constraint("Horizontal", 31, 3, 16, 1))
sketch2.addConstraint(Sketcher.Constraint("Vertical", 1, 1, 4, 2))
sketch2.addConstraint(Sketcher.Constraint("Vertical", 11, 2, 17, 1))
sketch2.addConstraint(Sketcher.Constraint("Vertical", 9, 2, 19, 2))
sketch2.addConstraint(Sketcher.Constraint("Vertical", 17, 1, 20, 2))
sketch2.addConstraint(Sketcher.Constraint("Vertical", 24, 2, 25, 2))
sketch2.addConstraint(Sketcher.Constraint("Vertical", 23, 2, 26, 2))
sketch2.addConstraint(Sketcher.Constraint("Equal", 30, 5))
sketch2.addConstraint(Sketcher.Constraint("Diameter", 15, 3.0))
sketch2.addConstraint(Sketcher.Constraint("Radius", 3, 7.0))
sketch2.addConstraint(Sketcher.Constraint("Radius", 0, 7.95))
sketch2.addConstraint(Sketcher.Constraint("DistanceY", 16, 3, -1, 1, 35.0))
sketch2.addConstraint(Sketcher.Constraint("DistanceX", 2, 1, 1, 1, 7.0))
pad2 = body.newObject("PartDesign::Pad", "Pad001")
pad2.Profile = sketch2
pad2.Length = 3

# Sketch on XY plane
sketch3 = body.newObject("Sketcher::SketchObject", "Sketch002")
sketch3.AttachmentSupport = (doc.getObject("XY_Plane"), [""])
sketch3.MapMode = "FlatFace"
sketch3.AttachmentOffset = App.Placement(V(0, 0, 3), App.Rotation())
sketch3.addGeometry(Part.Circle(V(0, -35, 0), V(0, 0, 1), 2.5), False)
sketch3.addGeometry(Part.Circle(V(0, 0, 0), V(0, 0, 1), 2.5), False)
sketch3.addConstraint(Sketcher.Constraint("Coincident", 1, 3, -1, 1))
sketch3.addConstraint(Sketcher.Constraint("Equal", 0, 1))
sketch3.addConstraint(Sketcher.Constraint("PointOnObject", 0, 3, -2))
sketch3.addConstraint(Sketcher.Constraint("Diameter", 0, 5.0))
sketch3.addConstraint(Sketcher.Constraint("DistanceY", 0, 3, -1, 1, 35.0))
pocket1 = body.newObject("PartDesign::Pocket", "Pocket")
pocket1.Profile = sketch3
pocket1.Length = 1.5

# Sketch on XY plane
sketch4 = body.newObject("Sketcher::SketchObject", "Sketch003")
sketch4.AttachmentSupport = (doc.getObject("XY_Plane"), [""])
sketch4.MapMode = "FlatFace"
sketch4.AttachmentOffset = App.Placement(V(0, 0, -3), App.Rotation())
sketch4.addGeometry(Part.Circle(V(0, 0, 0), V(0, 0, 1), 7), False)
sketch4.addConstraint(Sketcher.Constraint("Coincident", 0, 3, -1, 1))
sketch4.addConstraint(Sketcher.Constraint("Diameter", 0, 14.0))
pocket2 = body.newObject("PartDesign::Pocket", "Pocket001")
pocket2.Profile = sketch4
pocket2.Length = 4
pocket2.Reversed = True

# Sketch on XY plane
sketch5 = body.newObject("Sketcher::SketchObject", "Sketch004")
sketch5.AttachmentSupport = (doc.getObject("XY_Plane"), [""])
sketch5.MapMode = "FlatFace"
sketch5.AttachmentOffset = App.Placement(V(0, 0, -3), App.Rotation())
sketch5.addGeometry(Part.Circle(V(0, -35, 0), V(0, 0, 1), 8), False)
sketch5.addConstraint(Sketcher.Constraint("PointOnObject", 0, 3, -2))
sketch5.addConstraint(Sketcher.Constraint("Diameter", 0, 15.9))
sketch5.addConstraint(Sketcher.Constraint("DistanceY", 0, 3, -1, 1, 35.0))
pocket3 = body.newObject("PartDesign::Pocket", "Pocket002")
pocket3.Profile = sketch5
pocket3.Length = 1
pocket3.Reversed = True

# Sketch on XY plane
sketch6 = body.newObject("Sketcher::SketchObject", "Sketch005")
sketch6.AttachmentSupport = (doc.getObject("XY_Plane"), [""])
sketch6.MapMode = "FlatFace"
sketch6.AttachmentOffset = App.Placement(V(0, 0, 1.5), App.Rotation())
sketch6.addGeometry(Part.Circle(V(0, -35, 0), V(0, 0, 1), 2.5), False)
sketch6.addConstraint(Sketcher.Constraint("PointOnObject", 0, 3, -2))
sketch6.addConstraint(Sketcher.Constraint("Diameter", 0, 5.0))
sketch6.addConstraint(Sketcher.Constraint("DistanceY", 0, 3, -1, 1, 35.0))
pocket4 = body.newObject("PartDesign::Pocket", "Pocket003")
pocket4.Profile = sketch6
pocket4.Length = 0.5

# Sketch on XY plane
sketch7 = body.newObject("Sketcher::SketchObject", "Sketch006")
sketch7.AttachmentSupport = (doc.getObject("XY_Plane"), [""])
sketch7.MapMode = "FlatFace"
sketch7.AttachmentOffset = App.Placement(V(0, 0, -3.7), App.Rotation())
sketch7.addGeometry(Part.Circle(V(0, 0, 0), V(0, 0, 1), 8), False)
sketch7.addGeometry(Part.Circle(V(0, 0, 0), V(0, 0, 1), 7), False)
sketch7.addConstraint(Sketcher.Constraint("Coincident", 0, 3, -1, 1))
sketch7.addConstraint(Sketcher.Constraint("Coincident", 1, 3, -1, 1))
sketch7.addConstraint(Sketcher.Constraint("Diameter", 1, 14.0))
sketch7.addConstraint(Sketcher.Constraint("Diameter", 0, 15.9))
pad3 = body.newObject("PartDesign::Pad", "Pad002")
pad3.Profile = sketch7
pad3.Length = 0.7

# Sketch on XY plane
sketch8 = body.newObject("Sketcher::SketchObject", "Sketch007")
sketch8.AttachmentSupport = (doc.getObject("XY_Plane"), [""])
sketch8.MapMode = "FlatFace"
sketch8.AttachmentOffset = App.Placement(V(0, 0, -2.7), App.Rotation())
sketch8.addGeometry(Part.Circle(V(0, -35, 0), V(0, 0, 1), 8), False)
sketch8.addGeometry(Part.ArcOfCircle(Part.Circle(V(0, -35, 0), V(0, 0, 1), 7), math.radians(-60), math.radians(-30)), False)
sketch8.addGeometry(Part.LineSegment(V(6.1, -38.5, 0), V(3.5, -38.5, 0)), False)
sketch8.addGeometry(Part.LineSegment(V(3.5, -38.5, 0), V(3.5, -41.1, 0)), False)
sketch8.addGeometry(Part.ArcOfCircle(Part.Circle(V(0, -35, 0), V(0, 0, 1), 7), math.radians(-150), math.radians(-120)), False)
sketch8.addGeometry(Part.LineSegment(V(-3.5, -41.1, 0), V(-3.5, -38.5, 0)), False)
sketch8.addGeometry(Part.LineSegment(V(-3.5, -38.5, 0), V(-6.1, -38.5, 0)), False)
sketch8.addGeometry(Part.ArcOfCircle(Part.Circle(V(0, -35, 0), V(0, 0, 1), 7), math.radians(120), math.radians(150)), False)
sketch8.addGeometry(Part.LineSegment(V(-6.1, -31.5, 0), V(-3.5, -31.5, 0)), False)
sketch8.addGeometry(Part.LineSegment(V(-3.5, -31.5, 0), V(-3.5, -28.9, 0)), False)
sketch8.addGeometry(Part.ArcOfCircle(Part.Circle(V(0, -35, 0), V(0, 0, 1), 7), math.radians(30), math.radians(60)), False)
sketch8.addGeometry(Part.LineSegment(V(3.5, -28.9, 0), V(3.5, -31.5, 0)), False)
sketch8.addGeometry(Part.LineSegment(V(3.5, -31.5, 0), V(6.1, -31.5, 0)), False)
sketch8.addGeometry(Part.Circle(V(0, -35, 0), V(0, 0, 1), 1.5), False)
sketch8.addConstraint(Sketcher.Constraint("Coincident", 1, 2, 2, 1))
sketch8.addConstraint(Sketcher.Constraint("Coincident", 2, 2, 3, 1))
sketch8.addConstraint(Sketcher.Constraint("Coincident", 3, 2, 1, 1))
sketch8.addConstraint(Sketcher.Constraint("Coincident", 4, 2, 5, 1))
sketch8.addConstraint(Sketcher.Constraint("Coincident", 5, 2, 6, 1))
sketch8.addConstraint(Sketcher.Constraint("Coincident", 6, 2, 4, 1))
sketch8.addConstraint(Sketcher.Constraint("Coincident", 7, 2, 8, 1))
sketch8.addConstraint(Sketcher.Constraint("Coincident", 8, 2, 9, 1))
sketch8.addConstraint(Sketcher.Constraint("Coincident", 9, 2, 7, 1))
sketch8.addConstraint(Sketcher.Constraint("Coincident", 10, 2, 11, 1))
sketch8.addConstraint(Sketcher.Constraint("Coincident", 11, 2, 12, 1))
sketch8.addConstraint(Sketcher.Constraint("Coincident", 12, 2, 10, 1))
sketch8.addConstraint(Sketcher.Constraint("Horizontal", 2))
sketch8.addConstraint(Sketcher.Constraint("Vertical", 3))
sketch8.addConstraint(Sketcher.Constraint("Vertical", 5))
sketch8.addConstraint(Sketcher.Constraint("Horizontal", 6))
sketch8.addConstraint(Sketcher.Constraint("Horizontal", 8))
sketch8.addConstraint(Sketcher.Constraint("Vertical", 9))
sketch8.addConstraint(Sketcher.Constraint("Vertical", 11))
sketch8.addConstraint(Sketcher.Constraint("Horizontal", 12))
sketch8.addConstraint(Sketcher.Constraint("Coincident", 1, 3, 0, 3))
sketch8.addConstraint(Sketcher.Constraint("Coincident", 4, 3, 0, 3))
sketch8.addConstraint(Sketcher.Constraint("Coincident", 7, 3, 0, 3))
sketch8.addConstraint(Sketcher.Constraint("Coincident", 10, 3, 0, 3))
sketch8.addConstraint(Sketcher.Constraint("Coincident", 13, 3, 0, 3))
sketch8.addConstraint(Sketcher.Constraint("Equal", 1, 4))
sketch8.addConstraint(Sketcher.Constraint("Equal", 4, 7))
sketch8.addConstraint(Sketcher.Constraint("Equal", 7, 10))
sketch8.addConstraint(Sketcher.Constraint("Symmetric", 3, 2, 4, 2, -2))
sketch8.addConstraint(Sketcher.Constraint("Symmetric", 8, 2, 11, 2, -2))
sketch8.addConstraint(Sketcher.Constraint("Horizontal", 2, 2, 5, 2))
sketch8.addConstraint(Sketcher.Constraint("Vertical", 6, 2, 7, 2))
sketch8.addConstraint(Sketcher.Constraint("Vertical", 5, 2, 8, 2))
sketch8.addConstraint(Sketcher.Constraint("Equal", 12, 3))
sketch8.addConstraint(Sketcher.Constraint("Diameter", 13, 3.0))
sketch8.addConstraint(Sketcher.Constraint("Radius", 1, 7.0))
sketch8.addConstraint(Sketcher.Constraint("Diameter", 0, 15.9))
sketch8.addConstraint(Sketcher.Constraint("DistanceY", 0, 3, -1, 1, 35.0))
sketch8.addConstraint(Sketcher.Constraint("DistanceY", 1, 2, -1, 1, 38.5))
pad4 = body.newObject("PartDesign::Pad", "Pad003")
pad4.Profile = sketch8
pad4.Length = 0.7

# Sketch on XY plane
sketch9 = body.newObject("Sketcher::SketchObject", "Sketch008")
sketch9.AttachmentSupport = (doc.getObject("XY_Plane"), [""])
sketch9.MapMode = "FlatFace"
sketch9.AttachmentOffset = App.Placement(V(0, 0, -0.7), App.Rotation())
sketch9.addGeometry(Part.ArcOfCircle(Part.Circle(V(0, 0, 0), V(0, 0, 1), 8), math.radians(-116), math.radians(-64)), False)
sketch9.addGeometry(Part.LineSegment(V(4, -7, 0), V(4, -28, 0)), False)
sketch9.addGeometry(Part.ArcOfCircle(Part.Circle(V(0, -35, 0), V(0, 0, 1), 8), math.radians(64), math.radians(116)), False)
sketch9.addGeometry(Part.LineSegment(V(-4, -28, 0), V(-4, -7, 0)), False)
sketch9.addConstraint(Sketcher.Constraint("Coincident", 0, 2, 1, 1))
sketch9.addConstraint(Sketcher.Constraint("Coincident", 1, 2, 2, 1))
sketch9.addConstraint(Sketcher.Constraint("Coincident", 2, 2, 3, 1))
sketch9.addConstraint(Sketcher.Constraint("Coincident", 3, 2, 0, 1))
sketch9.addConstraint(Sketcher.Constraint("Vertical", 1))
sketch9.addConstraint(Sketcher.Constraint("Vertical", 3))
sketch9.addConstraint(Sketcher.Constraint("Coincident", 0, 3, -1, 1))
sketch9.addConstraint(Sketcher.Constraint("Equal", 0, 2))
sketch9.addConstraint(Sketcher.Constraint("Symmetric", 1, 2, 2, 2, -2))
sketch9.addConstraint(Sketcher.Constraint("Radius", 0, 7.95))
sketch9.addConstraint(Sketcher.Constraint("DistanceY", 2, 3, -1, 1, 35.0))
sketch9.addConstraint(Sketcher.Constraint("DistanceX", 2, 2, 1, 2, 7.0))
pad5 = body.newObject("PartDesign::Pad", "Pad004")
pad5.Profile = sketch9
pad5.Length = 0.7

# Sketch on XY plane
sketch10 = body.newObject("Sketcher::SketchObject", "Sketch009")
sketch10.AttachmentSupport = (doc.getObject("XY_Plane"), [""])
sketch10.MapMode = "FlatFace"
sketch10.AttachmentOffset = App.Placement(V(0, 0, 3), App.Rotation())
sketch10.addGeometry(Part.Circle(V(0, 0, 0), V(0, 0, 1), 2.5), False)
sketch10.addConstraint(Sketcher.Constraint("Coincident", 0, 3, -1, 1))
sketch10.addConstraint(Sketcher.Constraint("Diameter", 0, 5.1))
pocket5 = body.newObject("PartDesign::Pocket", "Pocket004")
pocket5.Profile = sketch10
pocket5.Type = "ThroughAll"

doc.recompute()
